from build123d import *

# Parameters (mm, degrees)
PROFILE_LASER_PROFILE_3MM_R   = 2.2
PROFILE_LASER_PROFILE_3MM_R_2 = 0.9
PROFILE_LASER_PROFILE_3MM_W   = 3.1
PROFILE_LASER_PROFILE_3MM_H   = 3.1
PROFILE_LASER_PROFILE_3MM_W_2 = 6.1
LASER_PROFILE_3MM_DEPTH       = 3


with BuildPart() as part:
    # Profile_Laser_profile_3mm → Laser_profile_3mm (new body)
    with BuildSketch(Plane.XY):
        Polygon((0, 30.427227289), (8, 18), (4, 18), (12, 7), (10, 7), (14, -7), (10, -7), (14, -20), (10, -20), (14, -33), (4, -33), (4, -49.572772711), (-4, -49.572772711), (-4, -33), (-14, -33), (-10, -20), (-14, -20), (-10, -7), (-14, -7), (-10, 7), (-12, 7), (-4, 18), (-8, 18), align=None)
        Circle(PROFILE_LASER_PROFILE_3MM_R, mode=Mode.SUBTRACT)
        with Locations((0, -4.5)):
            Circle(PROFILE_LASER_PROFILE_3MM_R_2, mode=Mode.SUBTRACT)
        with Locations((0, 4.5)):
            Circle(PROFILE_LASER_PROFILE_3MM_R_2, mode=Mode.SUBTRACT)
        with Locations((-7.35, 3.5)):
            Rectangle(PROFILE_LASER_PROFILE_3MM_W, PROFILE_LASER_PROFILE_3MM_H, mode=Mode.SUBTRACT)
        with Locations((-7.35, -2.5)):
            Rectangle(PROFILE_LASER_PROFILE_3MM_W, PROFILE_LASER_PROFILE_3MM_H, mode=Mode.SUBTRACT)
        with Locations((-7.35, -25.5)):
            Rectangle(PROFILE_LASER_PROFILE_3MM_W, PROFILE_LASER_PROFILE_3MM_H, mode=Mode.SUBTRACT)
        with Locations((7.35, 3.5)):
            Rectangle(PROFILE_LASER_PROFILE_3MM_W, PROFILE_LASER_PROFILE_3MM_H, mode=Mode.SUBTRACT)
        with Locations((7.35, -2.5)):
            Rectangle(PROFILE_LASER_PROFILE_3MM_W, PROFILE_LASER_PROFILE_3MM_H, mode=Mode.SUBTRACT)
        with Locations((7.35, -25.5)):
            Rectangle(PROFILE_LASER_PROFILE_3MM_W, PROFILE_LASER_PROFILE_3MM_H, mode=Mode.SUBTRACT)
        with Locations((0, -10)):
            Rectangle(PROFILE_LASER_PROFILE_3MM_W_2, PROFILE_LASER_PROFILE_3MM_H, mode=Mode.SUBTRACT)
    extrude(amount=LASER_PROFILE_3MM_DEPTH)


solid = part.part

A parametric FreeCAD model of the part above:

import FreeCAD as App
import Part
import Sketcher
from FreeCAD import Vector


def add_polygon(sketch, points):
    """Adds a closed chain of lines whose ends are joined by coincident constraints."""
    first, n = sketch.GeometryCount, len(points)
    for a, b in zip(points, points[1:] + points[:1]):
        sketch.addGeometry(Part.LineSegment(App.Vector(*a, 0), App.Vector(*b, 0)), False)
    for i in range(n):
        sketch.addConstraint(Sketcher.Constraint("Coincident", first + i, 2, first + (i + 1) % n, 1))

doc = App.newDocument("Part")
params = doc.addObject("Spreadsheet::Sheet", "Params")
for row, (alias, value) in enumerate([
    ("sketch1_diameter", "1.8 mm"),
    ("sketch1_diameter2", "4.4 mm"),
    ("sketch1_width", "4 mm"),
    ("sketch1_width2", "2 mm"),
    ("sketch1_width3", "10 mm"),
    ("pad1_length", "3 mm"),
], start=1):
    params.set(f"A{row}", alias)
    params.set(f"B{row}", "=" + value)
    params.setAlias(f"B{row}", alias)

body = doc.addObject("PartDesign::Body", "Body")

# Sketch on XY plane
sketch1 = doc.addObject("Sketcher::SketchObject", "Sketch")
body.addObject(sketch1)
sketch1.AttachmentSupport = (doc.XY_Plane, [""])
sketch1.MapMode = "FlatFace"
add_polygon(sketch1, [(8, 18), (0, 30.4), (-8, 18), (-4, 18), (-12, 7), (-10, 7), (-14, -7), (-10, -7), (-14, -20), (-10, -20), (-14, -33), (-4, -33), (-4, -49.6), (4, -49.6), (4, -33), (14, -33), (10, -20), (14, -20), (10, -7), (14, -7), (10, 7), (12, 7), (4, 18)])  # lines 0-22
add_polygon(sketch1, [(5.8, -27.1), (5.8, -23.9), (8.9, -23.9), (8.9, -27.1)])  # lines 23-26
add_polygon(sketch1, [(-8.9, -27.1), (-8.9, -23.9), (-5.8, -23.9), (-5.8, -27.1)])  # lines 27-30
add_polygon(sketch1, [(5.8, -4), (5.8, -0.9), (8.9, -0.9), (8.9, -4)])  # lines 31-34
add_polygon(sketch1, [(5.8, 1.9), (5.8, 5), (8.9, 5), (8.9, 1.9)])  # lines 35-38
add_polygon(sketch1, [(-3, -11.6), (-3, -8.4), (3, -8.4), (3, -11.6)])  # lines 39-42
sketch1.addGeometry(Part.Circle(Vector(0, -4.5, 0), Vector(0, 0, 1), 0.9), False)  # 43
sketch1.addGeometry(Part.Circle(Vector(0, 0, 0), Vector(0, 0, 1), 2.2), False)  # 44
sketch1.addGeometry(Part.Circle(Vector(0, 4.5, 0), Vector(0, 0, 1), 0.9), False)  # 45
add_polygon(sketch1, [(-8.9, -4), (-8.9, -0.9), (-5.8, -0.9), (-5.8, -4)])  # lines 46-49
add_polygon(sketch1, [(-8.9, 1.9), (-8.9, 5), (-5.8, 5), (-5.8, 1.9)])  # lines 50-53
sketch1.addConstraint([
    Sketcher.Constraint("Horizontal", 2),
    Sketcher.Constraint("Horizontal", 4),
    Sketcher.Constraint("Horizontal", 6),
    Sketcher.Constraint("Horizontal", 8),
    Sketcher.Constraint("Horizontal", 10),
    Sketcher.Constraint("Vertical", 11),
    Sketcher.Constraint("Horizontal", 12),
    Sketcher.Constraint("Vertical", 13),
    Sketcher.Constraint("Horizontal", 14),
    Sketcher.Constraint("Horizontal", 16),
    Sketcher.Constraint("Horizontal", 18),
    Sketcher.Constraint("Horizontal", 20),
    Sketcher.Constraint("Horizontal", 22),
    Sketcher.Constraint("Vertical", 23),
    Sketcher.Constraint("Horizontal", 24),
    Sketcher.Constraint("Vertical", 25),
    Sketcher.Constraint("Horizontal", 26),
    Sketcher.Constraint("Vertical", 27),
    Sketcher.Constraint("Horizontal", 28),
    Sketcher.Constraint("Vertical", 29),
    Sketcher.Constraint("Horizontal", 30),
    Sketcher.Constraint("Vertical", 31),
    Sketcher.Constraint("Horizontal", 32),
    Sketcher.Constraint("Vertical", 33),
    Sketcher.Constraint("Horizontal", 34),
    Sketcher.Constraint("Vertical", 35),
    Sketcher.Constraint("Horizontal", 36),
    Sketcher.Constraint("Vertical", 37),
    Sketcher.Constraint("Horizontal", 38),
    Sketcher.Constraint("Vertical", 39),
    Sketcher.Constraint("Horizontal", 40),
    Sketcher.Constraint("Vertical", 41),
    Sketcher.Constraint("Horizontal", 42),
    Sketcher.Constraint("Vertical", 46),
    Sketcher.Constraint("Horizontal", 47),
    Sketcher.Constraint("Vertical", 48),
    Sketcher.Constraint("Horizontal", 49),
    Sketcher.Constraint("Vertical", 50),
    Sketcher.Constraint("Horizontal", 51),
    Sketcher.Constraint("Vertical", 52),
    Sketcher.Constraint("Horizontal", 53),
    Sketcher.Constraint("Coincident", 44, 3, -1, 1),
    Sketcher.Constraint("Equal", 43, 45),
    Sketcher.Constraint("Symmetric", 43, 3, 45, 3, -1, 1),
    Sketcher.Constraint("Symmetric", 4, 2, 17, 2, -1, 1),
    Sketcher.Constraint("Symmetric", 6, 2, 19, 2, -1, 1),
    Sketcher.Constraint("Symmetric", 10, 2, 13, 2, -2),
    Sketcher.Constraint("Symmetric", 8, 2, 15, 2, -2),
    Sketcher.Constraint("Symmetric", 6, 2, 17, 2, -2),
    Sketcher.Constraint("Symmetric", 2, 2, 21, 2, -2),
    Sketcher.Constraint("Symmetric", 24, 2, 27, 2, -2),
    Sketcher.Constraint("Symmetric", 26, 2, 29, 2, -2),
    Sketcher.Constraint("Symmetric", 32, 2, 46, 2, -2),
    Sketcher.Constraint("Symmetric", 34, 2, 48, 2, -2),
    Sketcher.Constraint("Symmetric", 36, 2, 50, 2, -2),
    Sketcher.Constraint("Symmetric", 38, 2, 52, 2, -2),
    Sketcher.Constraint("PointOnObject", 43, 3, -2),
    Sketcher.Constraint("PointOnObject", 0, 2, -2),
    Sketcher.Constraint("Parallel", 7, 9),
    Sketcher.Constraint("Parallel", 15, 17),
    Sketcher.Constraint("Vertical", 5, 2, 7, 2),
    Sketcher.Constraint("Vertical", 6, 2, 8, 2),
    Sketcher.Constraint("Vertical", 7, 2, 9, 2),
    Sketcher.Constraint("Vertical", 2, 2, 10, 2),
    Sketcher.Constraint("Vertical", 16, 2, 18, 2),
    Sketcher.Constraint("Vertical", 26, 2, 31, 2),
    Sketcher.Constraint("Vertical", 25, 2, 32, 2),
    Sketcher.Constraint("Vertical", 34, 2, 35, 2),
    Sketcher.Constraint("Vertical", 33, 2, 36, 2),
    Sketcher.Constraint("Equal", 2, 6),
    Sketcher.Constraint("Equal", 10, 14),
    Sketcher.Constraint("Equal", 4, 20),
    Sketcher.Constraint("Equal", 18, 22),
    Sketcher.Constraint("Equal", 53, 23),
    Sketcher.Constraint("Equal", 29, 31),
    Sketcher.Constraint("Equal", 33, 35),
    Sketcher.Constraint("Equal", 37, 39),
    Sketcher.Constraint("Equal", 3, 7),
    Sketcher.Constraint("Diameter", 43, 1.8),
    Sketcher.Constraint("Diameter", 44, 4.4),
    Sketcher.Constraint("DistanceX", 2, 1, 2, 2, 4.0),
    Sketcher.Constraint("DistanceX", 4, 1, 4, 2, 2.0),
    Sketcher.Constraint("DistanceX", 10, 1, 10, 2, 10.0),
    Sketcher.Constraint("DistanceX", 12, 1, 12, 2, 8.0),
    Sketcher.Constraint("DistanceX", 24, 1, 24, 2, 3.1),
    Sketcher.Constraint("DistanceX", 40, 1, 40, 2, 6.1),
    Sketcher.Constraint("DistanceY", -1, 1, 1, 2, 18.0),
    Sketcher.Constraint("DistanceY", -1, 1, 3, 2, 7.0),
    Sketcher.Constraint("DistanceY", 43, 3, 45, 3, 9.0),
    Sketcher.Constraint("DistanceY", 31, 2, 35, 2, 6.0),
    Sketcher.Constraint("DistanceX", -1, 1, 23, 2, 5.8),
    Sketcher.Constraint("DistanceY", 39, 2, 34, 2, 4.4),
    Sketcher.Constraint("DistanceY", 23, 2, -1, 1, 23.95),
    Sketcher.Constraint("DistanceY", 31, 2, -1, 1, 0.95),
    Sketcher.Constraint("DistanceX", 39, 2, -1, 1, 3.05),
    Sketcher.Constraint("Distance", 0, 14.77958),
    Sketcher.Constraint("DistanceY", 11, 2, 11, 1, 16.572773),
])
sketch1.setExpression("Constraints[129]", "Params.sketch1_diameter")
sketch1.setExpression("Constraints[130]", "Params.sketch1_diameter2")
sketch1.setExpression("Constraints[131]", "Params.sketch1_width")
sketch1.setExpression("Constraints[132]", "Params.sketch1_width2")
sketch1.setExpression("Constraints[133]", "Params.sketch1_width3")
pad1 = doc.addObject("PartDesign::Pad", "Pad")
body.addObject(pad1)
pad1.Profile = sketch1
pad1.setExpression("Length", "Params.pad1_length")

doc.recompute()
